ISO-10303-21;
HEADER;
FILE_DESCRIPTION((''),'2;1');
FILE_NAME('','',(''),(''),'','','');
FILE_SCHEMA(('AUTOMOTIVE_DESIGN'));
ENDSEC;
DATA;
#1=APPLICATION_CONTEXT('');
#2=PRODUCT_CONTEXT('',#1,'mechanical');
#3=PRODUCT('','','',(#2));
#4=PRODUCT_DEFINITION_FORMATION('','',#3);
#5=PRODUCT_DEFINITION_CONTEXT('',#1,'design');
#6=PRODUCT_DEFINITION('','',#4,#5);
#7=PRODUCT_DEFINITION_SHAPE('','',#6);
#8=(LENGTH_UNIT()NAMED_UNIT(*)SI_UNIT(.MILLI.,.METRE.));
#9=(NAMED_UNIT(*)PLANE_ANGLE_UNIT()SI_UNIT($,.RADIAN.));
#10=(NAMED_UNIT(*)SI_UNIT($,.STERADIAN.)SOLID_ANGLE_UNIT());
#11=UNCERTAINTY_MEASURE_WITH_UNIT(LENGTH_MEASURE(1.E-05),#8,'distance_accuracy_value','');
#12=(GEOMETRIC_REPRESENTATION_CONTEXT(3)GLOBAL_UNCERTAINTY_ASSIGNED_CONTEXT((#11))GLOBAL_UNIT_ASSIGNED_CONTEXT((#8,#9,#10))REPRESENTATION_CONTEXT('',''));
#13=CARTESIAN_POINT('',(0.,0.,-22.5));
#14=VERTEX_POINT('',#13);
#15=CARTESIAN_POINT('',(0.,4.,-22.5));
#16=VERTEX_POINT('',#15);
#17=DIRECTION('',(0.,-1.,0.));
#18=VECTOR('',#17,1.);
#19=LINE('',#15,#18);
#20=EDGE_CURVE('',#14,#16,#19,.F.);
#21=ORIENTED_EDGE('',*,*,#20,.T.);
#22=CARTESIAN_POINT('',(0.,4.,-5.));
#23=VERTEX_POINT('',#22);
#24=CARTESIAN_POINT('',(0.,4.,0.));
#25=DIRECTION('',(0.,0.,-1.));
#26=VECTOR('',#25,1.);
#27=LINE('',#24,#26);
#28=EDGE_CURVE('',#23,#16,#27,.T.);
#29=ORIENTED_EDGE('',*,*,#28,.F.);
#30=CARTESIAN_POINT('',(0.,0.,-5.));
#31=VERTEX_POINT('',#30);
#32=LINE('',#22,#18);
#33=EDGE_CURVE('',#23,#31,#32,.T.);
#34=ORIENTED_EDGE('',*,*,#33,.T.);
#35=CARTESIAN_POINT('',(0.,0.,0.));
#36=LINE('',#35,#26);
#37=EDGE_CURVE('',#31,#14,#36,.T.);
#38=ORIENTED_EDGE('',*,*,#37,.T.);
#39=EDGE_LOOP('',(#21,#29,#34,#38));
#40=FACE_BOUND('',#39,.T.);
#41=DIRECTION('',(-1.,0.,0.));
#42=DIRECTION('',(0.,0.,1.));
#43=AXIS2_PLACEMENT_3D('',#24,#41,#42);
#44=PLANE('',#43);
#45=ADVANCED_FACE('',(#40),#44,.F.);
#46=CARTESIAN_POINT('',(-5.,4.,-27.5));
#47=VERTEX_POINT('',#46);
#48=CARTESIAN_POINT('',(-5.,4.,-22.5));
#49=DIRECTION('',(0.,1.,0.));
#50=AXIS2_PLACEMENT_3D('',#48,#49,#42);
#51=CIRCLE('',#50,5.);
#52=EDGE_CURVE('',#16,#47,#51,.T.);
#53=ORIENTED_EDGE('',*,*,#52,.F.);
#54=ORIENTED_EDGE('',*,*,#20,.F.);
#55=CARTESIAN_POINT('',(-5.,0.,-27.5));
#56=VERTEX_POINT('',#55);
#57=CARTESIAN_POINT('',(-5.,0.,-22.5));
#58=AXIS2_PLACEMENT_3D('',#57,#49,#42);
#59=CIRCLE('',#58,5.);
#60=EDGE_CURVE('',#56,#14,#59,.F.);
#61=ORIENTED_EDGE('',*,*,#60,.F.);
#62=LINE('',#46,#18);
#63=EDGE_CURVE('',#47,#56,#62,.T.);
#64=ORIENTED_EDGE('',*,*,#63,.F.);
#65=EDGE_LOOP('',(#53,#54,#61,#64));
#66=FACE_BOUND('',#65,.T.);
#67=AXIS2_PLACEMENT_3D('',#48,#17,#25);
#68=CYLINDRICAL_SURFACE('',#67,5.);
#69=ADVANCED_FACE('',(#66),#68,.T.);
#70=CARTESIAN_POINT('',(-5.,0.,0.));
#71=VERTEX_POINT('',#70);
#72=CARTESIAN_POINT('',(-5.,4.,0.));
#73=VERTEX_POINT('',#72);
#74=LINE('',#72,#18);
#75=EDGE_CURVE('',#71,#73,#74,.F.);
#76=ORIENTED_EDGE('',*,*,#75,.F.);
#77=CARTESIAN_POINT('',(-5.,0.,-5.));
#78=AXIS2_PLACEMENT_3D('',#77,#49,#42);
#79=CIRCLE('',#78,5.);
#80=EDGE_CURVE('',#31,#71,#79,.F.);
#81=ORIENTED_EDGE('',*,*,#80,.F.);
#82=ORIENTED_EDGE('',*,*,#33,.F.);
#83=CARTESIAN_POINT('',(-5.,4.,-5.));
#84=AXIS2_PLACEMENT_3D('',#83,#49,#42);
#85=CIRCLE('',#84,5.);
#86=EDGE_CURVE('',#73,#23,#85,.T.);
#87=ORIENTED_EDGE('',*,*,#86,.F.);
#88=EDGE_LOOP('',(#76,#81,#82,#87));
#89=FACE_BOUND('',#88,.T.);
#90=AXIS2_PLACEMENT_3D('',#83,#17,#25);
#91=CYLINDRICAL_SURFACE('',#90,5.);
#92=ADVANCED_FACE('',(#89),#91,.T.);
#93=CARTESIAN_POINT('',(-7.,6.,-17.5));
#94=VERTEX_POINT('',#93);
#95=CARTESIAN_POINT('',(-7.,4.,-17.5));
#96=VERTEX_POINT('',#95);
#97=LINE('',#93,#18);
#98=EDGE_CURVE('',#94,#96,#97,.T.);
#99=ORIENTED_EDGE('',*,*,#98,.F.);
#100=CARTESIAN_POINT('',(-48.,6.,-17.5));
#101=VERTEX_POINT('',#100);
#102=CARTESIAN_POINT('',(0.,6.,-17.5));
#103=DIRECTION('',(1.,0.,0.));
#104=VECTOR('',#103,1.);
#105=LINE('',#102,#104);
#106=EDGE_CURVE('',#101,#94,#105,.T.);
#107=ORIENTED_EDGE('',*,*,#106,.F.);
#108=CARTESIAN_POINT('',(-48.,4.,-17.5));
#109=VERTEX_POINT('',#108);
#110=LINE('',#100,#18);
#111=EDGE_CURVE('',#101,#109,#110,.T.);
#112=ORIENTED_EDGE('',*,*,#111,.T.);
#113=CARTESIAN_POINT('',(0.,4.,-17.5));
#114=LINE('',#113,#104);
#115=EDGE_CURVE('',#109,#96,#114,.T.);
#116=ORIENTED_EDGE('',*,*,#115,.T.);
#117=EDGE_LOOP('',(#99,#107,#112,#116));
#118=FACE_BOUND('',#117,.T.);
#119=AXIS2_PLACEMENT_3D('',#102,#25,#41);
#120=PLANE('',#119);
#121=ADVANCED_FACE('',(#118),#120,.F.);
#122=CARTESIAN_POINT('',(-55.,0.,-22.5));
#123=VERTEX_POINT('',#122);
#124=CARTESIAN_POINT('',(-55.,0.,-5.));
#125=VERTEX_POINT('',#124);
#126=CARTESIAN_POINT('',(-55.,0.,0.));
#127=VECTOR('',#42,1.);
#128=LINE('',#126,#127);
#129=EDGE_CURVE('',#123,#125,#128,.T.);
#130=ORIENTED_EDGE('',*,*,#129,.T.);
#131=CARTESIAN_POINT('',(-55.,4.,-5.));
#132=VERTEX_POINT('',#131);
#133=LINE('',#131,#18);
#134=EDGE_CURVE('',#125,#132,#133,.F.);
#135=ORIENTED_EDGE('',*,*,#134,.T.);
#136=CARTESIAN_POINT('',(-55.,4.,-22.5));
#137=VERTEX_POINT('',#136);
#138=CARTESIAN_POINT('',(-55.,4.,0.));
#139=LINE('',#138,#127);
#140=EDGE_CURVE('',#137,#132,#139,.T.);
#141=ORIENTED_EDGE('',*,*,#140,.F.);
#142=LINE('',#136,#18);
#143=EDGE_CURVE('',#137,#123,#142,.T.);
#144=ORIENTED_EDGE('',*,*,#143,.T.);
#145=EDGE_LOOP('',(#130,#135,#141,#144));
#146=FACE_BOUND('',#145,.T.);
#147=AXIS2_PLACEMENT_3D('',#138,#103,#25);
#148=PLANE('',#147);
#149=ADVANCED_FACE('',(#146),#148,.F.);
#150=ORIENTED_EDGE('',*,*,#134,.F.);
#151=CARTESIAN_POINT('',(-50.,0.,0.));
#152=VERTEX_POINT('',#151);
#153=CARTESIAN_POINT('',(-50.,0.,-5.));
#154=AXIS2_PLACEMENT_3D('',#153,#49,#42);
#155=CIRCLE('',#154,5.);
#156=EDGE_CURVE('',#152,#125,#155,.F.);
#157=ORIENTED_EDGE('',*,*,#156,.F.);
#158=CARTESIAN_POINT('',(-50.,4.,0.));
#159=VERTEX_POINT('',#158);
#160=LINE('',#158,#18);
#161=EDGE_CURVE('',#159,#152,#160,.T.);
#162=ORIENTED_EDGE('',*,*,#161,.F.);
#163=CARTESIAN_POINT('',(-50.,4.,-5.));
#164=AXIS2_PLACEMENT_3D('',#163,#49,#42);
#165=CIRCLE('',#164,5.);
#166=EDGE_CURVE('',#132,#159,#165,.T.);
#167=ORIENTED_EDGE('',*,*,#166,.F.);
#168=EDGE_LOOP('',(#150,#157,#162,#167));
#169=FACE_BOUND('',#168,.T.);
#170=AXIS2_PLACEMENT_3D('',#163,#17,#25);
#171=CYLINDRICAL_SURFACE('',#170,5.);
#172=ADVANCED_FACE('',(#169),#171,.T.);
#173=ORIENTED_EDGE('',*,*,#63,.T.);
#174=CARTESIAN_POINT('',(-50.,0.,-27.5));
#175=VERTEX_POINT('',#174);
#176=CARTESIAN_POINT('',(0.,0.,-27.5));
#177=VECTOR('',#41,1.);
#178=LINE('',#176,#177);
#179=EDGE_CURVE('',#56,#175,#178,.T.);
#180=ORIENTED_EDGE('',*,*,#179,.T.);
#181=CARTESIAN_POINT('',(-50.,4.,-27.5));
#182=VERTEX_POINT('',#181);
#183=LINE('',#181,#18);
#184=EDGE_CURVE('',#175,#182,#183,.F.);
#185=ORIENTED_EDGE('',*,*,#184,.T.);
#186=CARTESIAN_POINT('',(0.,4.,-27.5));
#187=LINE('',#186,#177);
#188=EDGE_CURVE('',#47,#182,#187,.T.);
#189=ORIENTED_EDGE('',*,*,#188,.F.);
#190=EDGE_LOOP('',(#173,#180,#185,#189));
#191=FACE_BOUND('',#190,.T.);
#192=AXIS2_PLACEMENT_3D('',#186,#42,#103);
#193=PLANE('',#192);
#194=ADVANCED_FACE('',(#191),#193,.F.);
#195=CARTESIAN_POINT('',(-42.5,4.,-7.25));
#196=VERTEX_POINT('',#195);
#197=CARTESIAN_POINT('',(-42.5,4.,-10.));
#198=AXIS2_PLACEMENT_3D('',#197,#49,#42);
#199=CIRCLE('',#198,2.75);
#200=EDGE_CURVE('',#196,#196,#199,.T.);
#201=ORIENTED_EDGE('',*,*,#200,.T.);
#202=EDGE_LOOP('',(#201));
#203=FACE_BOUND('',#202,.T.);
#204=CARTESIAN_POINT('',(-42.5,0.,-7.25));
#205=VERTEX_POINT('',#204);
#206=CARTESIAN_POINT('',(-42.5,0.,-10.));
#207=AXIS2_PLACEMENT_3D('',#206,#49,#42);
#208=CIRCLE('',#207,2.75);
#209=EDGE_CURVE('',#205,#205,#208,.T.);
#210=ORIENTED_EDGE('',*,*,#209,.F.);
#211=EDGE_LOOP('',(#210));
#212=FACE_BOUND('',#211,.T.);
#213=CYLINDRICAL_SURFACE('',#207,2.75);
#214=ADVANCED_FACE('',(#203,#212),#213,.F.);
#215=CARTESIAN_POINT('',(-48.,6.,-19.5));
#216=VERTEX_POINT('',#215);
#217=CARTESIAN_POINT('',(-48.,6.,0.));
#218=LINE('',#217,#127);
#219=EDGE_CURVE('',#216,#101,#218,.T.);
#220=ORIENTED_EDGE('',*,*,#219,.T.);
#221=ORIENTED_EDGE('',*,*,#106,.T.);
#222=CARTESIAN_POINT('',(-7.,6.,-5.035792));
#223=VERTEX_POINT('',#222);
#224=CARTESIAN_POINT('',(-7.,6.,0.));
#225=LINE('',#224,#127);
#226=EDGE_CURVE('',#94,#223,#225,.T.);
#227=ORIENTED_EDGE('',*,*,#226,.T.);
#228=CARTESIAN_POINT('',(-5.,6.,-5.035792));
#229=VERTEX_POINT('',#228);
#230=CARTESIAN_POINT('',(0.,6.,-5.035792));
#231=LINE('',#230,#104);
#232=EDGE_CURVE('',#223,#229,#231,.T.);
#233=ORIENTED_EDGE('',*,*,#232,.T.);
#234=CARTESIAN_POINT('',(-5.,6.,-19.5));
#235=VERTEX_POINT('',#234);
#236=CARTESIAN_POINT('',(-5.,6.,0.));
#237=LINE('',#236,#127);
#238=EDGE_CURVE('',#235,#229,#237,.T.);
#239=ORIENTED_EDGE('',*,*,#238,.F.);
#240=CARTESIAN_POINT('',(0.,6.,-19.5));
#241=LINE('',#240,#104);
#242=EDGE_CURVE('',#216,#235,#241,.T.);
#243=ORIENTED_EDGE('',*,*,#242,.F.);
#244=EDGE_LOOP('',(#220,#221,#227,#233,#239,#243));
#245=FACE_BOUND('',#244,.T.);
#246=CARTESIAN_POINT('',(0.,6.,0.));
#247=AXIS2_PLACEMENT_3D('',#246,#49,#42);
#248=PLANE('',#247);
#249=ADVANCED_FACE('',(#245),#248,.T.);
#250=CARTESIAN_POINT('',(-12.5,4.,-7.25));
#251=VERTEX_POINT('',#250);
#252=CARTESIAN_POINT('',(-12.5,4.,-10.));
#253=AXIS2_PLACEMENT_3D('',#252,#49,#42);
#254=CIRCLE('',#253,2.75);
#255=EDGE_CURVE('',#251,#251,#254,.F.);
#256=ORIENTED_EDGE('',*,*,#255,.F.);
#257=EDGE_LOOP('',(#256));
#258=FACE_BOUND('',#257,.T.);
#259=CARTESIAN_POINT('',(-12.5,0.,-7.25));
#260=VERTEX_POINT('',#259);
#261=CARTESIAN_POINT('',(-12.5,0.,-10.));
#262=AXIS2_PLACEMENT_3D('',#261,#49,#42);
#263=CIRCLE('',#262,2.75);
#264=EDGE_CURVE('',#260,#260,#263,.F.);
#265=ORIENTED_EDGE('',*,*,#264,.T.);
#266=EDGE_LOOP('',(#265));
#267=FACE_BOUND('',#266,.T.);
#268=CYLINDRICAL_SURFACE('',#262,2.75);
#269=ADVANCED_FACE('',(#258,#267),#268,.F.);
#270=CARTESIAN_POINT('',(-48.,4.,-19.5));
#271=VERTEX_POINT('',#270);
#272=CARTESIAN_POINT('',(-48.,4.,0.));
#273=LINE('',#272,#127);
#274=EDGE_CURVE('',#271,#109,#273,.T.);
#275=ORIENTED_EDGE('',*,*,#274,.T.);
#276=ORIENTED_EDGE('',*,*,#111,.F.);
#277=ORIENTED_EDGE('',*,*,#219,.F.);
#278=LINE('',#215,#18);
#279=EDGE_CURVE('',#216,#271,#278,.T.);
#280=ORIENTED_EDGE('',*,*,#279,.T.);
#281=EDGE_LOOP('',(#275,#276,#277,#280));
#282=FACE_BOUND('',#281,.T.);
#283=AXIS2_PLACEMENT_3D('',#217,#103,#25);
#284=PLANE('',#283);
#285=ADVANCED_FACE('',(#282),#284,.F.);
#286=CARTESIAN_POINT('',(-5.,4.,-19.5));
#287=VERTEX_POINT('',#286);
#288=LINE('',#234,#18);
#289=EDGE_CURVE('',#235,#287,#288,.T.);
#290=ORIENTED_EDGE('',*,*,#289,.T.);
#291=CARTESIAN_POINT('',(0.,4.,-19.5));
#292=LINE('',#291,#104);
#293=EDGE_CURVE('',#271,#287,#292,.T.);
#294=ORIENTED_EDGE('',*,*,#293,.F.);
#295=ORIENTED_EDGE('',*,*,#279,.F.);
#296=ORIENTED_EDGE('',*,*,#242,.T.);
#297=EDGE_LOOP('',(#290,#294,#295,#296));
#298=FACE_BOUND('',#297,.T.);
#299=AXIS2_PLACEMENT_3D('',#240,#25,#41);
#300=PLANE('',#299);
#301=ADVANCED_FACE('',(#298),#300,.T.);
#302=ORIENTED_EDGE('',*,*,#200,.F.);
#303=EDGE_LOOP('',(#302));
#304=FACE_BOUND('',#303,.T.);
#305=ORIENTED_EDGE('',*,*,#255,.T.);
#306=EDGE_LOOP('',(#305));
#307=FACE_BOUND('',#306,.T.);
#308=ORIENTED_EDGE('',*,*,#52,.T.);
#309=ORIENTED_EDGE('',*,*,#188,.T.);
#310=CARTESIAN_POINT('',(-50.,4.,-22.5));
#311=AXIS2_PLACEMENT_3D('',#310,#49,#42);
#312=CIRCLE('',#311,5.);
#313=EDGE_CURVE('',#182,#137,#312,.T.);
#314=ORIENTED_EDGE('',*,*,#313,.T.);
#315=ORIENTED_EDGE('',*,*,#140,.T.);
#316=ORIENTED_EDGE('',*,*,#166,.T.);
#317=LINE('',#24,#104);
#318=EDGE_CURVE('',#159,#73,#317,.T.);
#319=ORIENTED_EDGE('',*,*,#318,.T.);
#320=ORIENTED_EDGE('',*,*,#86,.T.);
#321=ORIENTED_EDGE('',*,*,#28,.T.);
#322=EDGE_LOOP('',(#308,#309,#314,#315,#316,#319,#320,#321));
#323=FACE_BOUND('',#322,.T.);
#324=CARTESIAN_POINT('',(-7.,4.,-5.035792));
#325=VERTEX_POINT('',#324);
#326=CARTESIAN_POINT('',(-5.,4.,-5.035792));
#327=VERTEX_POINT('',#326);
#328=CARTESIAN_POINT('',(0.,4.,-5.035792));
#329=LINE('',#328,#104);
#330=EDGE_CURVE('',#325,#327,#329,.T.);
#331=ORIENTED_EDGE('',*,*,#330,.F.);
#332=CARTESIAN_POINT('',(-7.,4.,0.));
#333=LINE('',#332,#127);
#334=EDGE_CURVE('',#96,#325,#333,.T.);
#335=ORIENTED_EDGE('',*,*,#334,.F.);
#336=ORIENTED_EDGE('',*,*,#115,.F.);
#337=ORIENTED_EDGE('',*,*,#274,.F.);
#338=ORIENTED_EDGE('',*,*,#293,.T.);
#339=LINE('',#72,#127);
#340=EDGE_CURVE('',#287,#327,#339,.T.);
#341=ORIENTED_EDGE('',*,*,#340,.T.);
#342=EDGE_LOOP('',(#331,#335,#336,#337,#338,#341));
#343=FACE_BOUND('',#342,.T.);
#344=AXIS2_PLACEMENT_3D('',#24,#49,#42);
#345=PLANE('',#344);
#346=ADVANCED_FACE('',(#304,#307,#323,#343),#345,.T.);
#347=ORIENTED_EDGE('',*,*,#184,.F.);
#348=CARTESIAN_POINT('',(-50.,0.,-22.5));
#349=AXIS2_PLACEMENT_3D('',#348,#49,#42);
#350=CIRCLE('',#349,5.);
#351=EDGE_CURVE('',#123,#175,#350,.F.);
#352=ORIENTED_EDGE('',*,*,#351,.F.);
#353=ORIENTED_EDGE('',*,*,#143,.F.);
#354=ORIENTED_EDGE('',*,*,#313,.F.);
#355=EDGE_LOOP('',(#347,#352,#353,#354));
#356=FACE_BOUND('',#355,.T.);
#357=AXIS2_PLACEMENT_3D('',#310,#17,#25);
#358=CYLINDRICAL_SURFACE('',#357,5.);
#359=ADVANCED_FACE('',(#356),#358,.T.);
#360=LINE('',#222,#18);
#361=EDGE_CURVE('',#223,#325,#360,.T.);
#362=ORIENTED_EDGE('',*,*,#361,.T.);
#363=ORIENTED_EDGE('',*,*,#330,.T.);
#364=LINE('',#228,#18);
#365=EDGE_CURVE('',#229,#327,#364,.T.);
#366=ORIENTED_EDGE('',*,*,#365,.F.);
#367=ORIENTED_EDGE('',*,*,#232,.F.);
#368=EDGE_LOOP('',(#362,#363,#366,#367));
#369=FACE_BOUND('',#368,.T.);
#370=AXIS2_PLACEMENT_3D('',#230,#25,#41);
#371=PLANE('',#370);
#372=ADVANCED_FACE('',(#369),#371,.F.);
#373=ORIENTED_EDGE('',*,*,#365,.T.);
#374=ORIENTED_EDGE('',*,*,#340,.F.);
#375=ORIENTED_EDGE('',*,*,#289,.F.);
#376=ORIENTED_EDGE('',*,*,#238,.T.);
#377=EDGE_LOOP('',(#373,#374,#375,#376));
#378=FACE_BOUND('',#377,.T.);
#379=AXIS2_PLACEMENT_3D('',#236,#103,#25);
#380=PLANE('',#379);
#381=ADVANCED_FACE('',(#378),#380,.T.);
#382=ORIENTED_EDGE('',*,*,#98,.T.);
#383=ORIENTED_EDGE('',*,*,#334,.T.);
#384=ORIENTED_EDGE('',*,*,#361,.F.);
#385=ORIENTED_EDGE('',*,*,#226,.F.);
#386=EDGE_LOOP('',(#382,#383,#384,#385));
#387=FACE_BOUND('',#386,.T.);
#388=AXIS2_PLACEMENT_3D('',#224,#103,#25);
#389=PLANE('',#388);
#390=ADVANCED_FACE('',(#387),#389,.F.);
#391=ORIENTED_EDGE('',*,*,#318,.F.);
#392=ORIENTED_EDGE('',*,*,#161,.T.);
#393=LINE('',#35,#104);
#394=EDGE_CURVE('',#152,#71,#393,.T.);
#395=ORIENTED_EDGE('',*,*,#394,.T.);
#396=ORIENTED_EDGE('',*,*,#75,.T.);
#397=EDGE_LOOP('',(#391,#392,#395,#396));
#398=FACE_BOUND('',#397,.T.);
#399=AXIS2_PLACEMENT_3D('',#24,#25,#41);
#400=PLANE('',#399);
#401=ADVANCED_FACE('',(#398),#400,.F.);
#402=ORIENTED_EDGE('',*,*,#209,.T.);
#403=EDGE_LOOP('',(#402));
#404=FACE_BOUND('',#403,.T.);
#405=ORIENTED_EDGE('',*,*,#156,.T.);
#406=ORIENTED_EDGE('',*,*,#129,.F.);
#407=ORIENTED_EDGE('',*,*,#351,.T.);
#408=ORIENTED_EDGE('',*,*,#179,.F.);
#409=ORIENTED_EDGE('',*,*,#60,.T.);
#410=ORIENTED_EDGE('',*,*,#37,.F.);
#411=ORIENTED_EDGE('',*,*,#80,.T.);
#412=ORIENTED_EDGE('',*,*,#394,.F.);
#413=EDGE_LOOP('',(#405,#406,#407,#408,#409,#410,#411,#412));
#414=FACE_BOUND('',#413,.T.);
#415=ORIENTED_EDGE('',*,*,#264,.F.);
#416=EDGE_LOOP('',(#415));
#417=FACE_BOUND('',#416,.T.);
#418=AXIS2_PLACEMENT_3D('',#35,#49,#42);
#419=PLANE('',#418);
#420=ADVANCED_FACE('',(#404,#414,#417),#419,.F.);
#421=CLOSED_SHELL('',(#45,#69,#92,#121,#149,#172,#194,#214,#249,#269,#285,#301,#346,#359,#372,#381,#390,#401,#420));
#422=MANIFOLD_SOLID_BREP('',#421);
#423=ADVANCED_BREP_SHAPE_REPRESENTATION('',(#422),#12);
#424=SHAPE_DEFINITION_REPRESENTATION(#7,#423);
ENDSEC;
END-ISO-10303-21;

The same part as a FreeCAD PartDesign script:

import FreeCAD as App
import Part
import Sketcher
from FreeCAD import Vector


def edges_at(feature, points):
    """Names of the edges that pass closest to the given points."""
    edges = feature.Shape.Edges
    near = lambda p: min(range(len(edges)), key=lambda i: edges[i].distToShape(Part.Vertex(*p))[0])
    return sorted({f"Edge{near(p) + 1}" for p in points})

doc = App.newDocument("Part")
body = doc.addObject("PartDesign::Body", "Body")

sketch1 = body.newObject("Sketcher::SketchObject", "Sketch")
sketch1.AttachmentSupport = (doc.getObject("XZ_Plane"), [""])
sketch1.MapMode = "FlatFace"
sketch1.addGeometry([
    Part.LineSegment(Vector(-55, -28, 0), Vector(-55, 0, 0)),
    Part.LineSegment(Vector(-55, 0, 0), Vector(0, 0, 0)),
    Part.LineSegment(Vector(0, 0, 0), Vector(0, -28, 0)),
    Part.LineSegment(Vector(0, -28, 0), Vector(-55, -28, 0)),
], False)
sketch1.addConstraint([
    Sketcher.Constraint("Coincident", 0, 2, 1, 1),
    Sketcher.Constraint("Coincident", 1, 2, 2, 1),
    Sketcher.Constraint("Coincident", 2, 2, 3, 1),
    Sketcher.Constraint("Coincident", 3, 2, 0, 1),
    Sketcher.Constraint("Vertical", 0),
    Sketcher.Constraint("Horizontal", 1),
    Sketcher.Constraint("Vertical", 2),
    Sketcher.Constraint("Horizontal", 3),
    Sketcher.Constraint("Coincident", 1, 2, -1, 1),
    Sketcher.Constraint("DistanceX", 1, 1, 1, 2, 55.0),
    Sketcher.Constraint("DistanceY", 0, 1, 0, 2, 27.5),
])
pad1 = body.newObject("PartDesign::Pad", "Pad")
pad1.Profile = sketch1
pad1.Length = 4
pad1.Reversed = True

sketch2 = body.newObject("Sketcher::SketchObject", "Sketch001")
sketch2.AttachmentSupport = (doc.getObject("XZ_Plane"), [""])
sketch2.MapMode = "FlatFace"
sketch2.AttachmentOffset = App.Placement(Vector(0, 0, -4), App.Rotation())
sketch2.addGeometry([
    Part.Circle(Vector(-42.5, -10, 0), Vector(0, 0, 1), 2.8),
    Part.Circle(Vector(-12.5, -10, 0), Vector(0, 0, 1), 2.8),
], False)
sketch2.addConstraint([
    Sketcher.Constraint("Equal", 0, 1),
    Sketcher.Constraint("Horizontal", 0, 3, 1, 3),
    Sketcher.Constraint("Diameter", 0, 5.5),
    Sketcher.Constraint("DistanceY", 0, 3, -1, 1, 10.0),
    Sketcher.Constraint("DistanceX", 0, 3, 1, 3, 30.0),
    Sketcher.Constraint("DistanceX", 0, 3, -1, 1, 42.5),
])
pocket1 = body.newObject("PartDesign::Pocket", "Pocket")
pocket1.Profile = sketch2
pocket1.Type = "ThroughAll"
pocket1.Reversed = True
doc.recompute()

fillet = body.newObject("PartDesign::Fillet", "Fillet")
fillet.Base = (pocket1, edges_at(pocket1, [
    (0, 2, 0),
    (-55, 2, 0),
    (-55, 2, -27.5),
    (0, 2, -27.5),
]))
fillet.Radius = 5

sketch3 = body.newObject("Sketcher::SketchObject", "Sketch002")
sketch3.AttachmentSupport = (doc.getObject("XZ_Plane"), [""])
sketch3.MapMode = "FlatFace"
sketch3.AttachmentOffset = App.Placement(Vector(0, 0, -4), App.Rotation())
sketch3.addGeometry([
    Part.LineSegment(Vector(-7, -17.5, 0), Vector(-7, -5, 0)),
    Part.LineSegment(Vector(-7, -5, 0), Vector(-5, -5, 0)),
    Part.LineSegment(Vector(-5, -5, 0), Vector(-5, -19.5, 0)),
    Part.LineSegment(Vector(-5, -19.5, 0), Vector(-48, -19.5, 0)),
    Part.LineSegment(Vector(-48, -19.5, 0), Vector(-48, -17.5, 0)),
    Part.LineSegment(Vector(-48, -17.5, 0), Vector(-7, -17.5, 0)),
], False)
sketch3.addConstraint([
    Sketcher.Constraint("Coincident", 0, 2, 1, 1),
    Sketcher.Constraint("Coincident", 1, 2, 2, 1),
    Sketcher.Constraint("Coincident", 2, 2, 3, 1),
    Sketcher.Constraint("Coincident", 3, 2, 4, 1),
    Sketcher.Constraint("Coincident", 4, 2, 5, 1),
    Sketcher.Constraint("Coincident", 5, 2, 0, 1),
    Sketcher.Constraint("Vertical", 0),
    Sketcher.Constraint("Horizontal", 1),
    Sketcher.Constraint("Vertical", 2),
    Sketcher.Constraint("Horizontal", 3),
    Sketcher.Constraint("Vertical", 4),
    Sketcher.Constraint("Horizontal", 5),
    Sketcher.Constraint("Equal", 1, 4),
    Sketcher.Constraint("DistanceX", 1, 1, 1, 2, 2.0),
    Sketcher.Constraint("DistanceX", 3, 2, 3, 1, 43.0),
    Sketcher.Constraint("DistanceX", 0, 2, -1, 1, 7.0),
    Sketcher.Constraint("DistanceY", 2, 2, -1, 1, 19.5),
    Sketcher.Constraint("DistanceY", 0, 1, 0, 2, 12.464208),
])
pad2 = body.newObject("PartDesign::Pad", "Pad001")
pad2.Profile = sketch3
pad2.Length = 2
pad2.Reversed = True

doc.recompute()
